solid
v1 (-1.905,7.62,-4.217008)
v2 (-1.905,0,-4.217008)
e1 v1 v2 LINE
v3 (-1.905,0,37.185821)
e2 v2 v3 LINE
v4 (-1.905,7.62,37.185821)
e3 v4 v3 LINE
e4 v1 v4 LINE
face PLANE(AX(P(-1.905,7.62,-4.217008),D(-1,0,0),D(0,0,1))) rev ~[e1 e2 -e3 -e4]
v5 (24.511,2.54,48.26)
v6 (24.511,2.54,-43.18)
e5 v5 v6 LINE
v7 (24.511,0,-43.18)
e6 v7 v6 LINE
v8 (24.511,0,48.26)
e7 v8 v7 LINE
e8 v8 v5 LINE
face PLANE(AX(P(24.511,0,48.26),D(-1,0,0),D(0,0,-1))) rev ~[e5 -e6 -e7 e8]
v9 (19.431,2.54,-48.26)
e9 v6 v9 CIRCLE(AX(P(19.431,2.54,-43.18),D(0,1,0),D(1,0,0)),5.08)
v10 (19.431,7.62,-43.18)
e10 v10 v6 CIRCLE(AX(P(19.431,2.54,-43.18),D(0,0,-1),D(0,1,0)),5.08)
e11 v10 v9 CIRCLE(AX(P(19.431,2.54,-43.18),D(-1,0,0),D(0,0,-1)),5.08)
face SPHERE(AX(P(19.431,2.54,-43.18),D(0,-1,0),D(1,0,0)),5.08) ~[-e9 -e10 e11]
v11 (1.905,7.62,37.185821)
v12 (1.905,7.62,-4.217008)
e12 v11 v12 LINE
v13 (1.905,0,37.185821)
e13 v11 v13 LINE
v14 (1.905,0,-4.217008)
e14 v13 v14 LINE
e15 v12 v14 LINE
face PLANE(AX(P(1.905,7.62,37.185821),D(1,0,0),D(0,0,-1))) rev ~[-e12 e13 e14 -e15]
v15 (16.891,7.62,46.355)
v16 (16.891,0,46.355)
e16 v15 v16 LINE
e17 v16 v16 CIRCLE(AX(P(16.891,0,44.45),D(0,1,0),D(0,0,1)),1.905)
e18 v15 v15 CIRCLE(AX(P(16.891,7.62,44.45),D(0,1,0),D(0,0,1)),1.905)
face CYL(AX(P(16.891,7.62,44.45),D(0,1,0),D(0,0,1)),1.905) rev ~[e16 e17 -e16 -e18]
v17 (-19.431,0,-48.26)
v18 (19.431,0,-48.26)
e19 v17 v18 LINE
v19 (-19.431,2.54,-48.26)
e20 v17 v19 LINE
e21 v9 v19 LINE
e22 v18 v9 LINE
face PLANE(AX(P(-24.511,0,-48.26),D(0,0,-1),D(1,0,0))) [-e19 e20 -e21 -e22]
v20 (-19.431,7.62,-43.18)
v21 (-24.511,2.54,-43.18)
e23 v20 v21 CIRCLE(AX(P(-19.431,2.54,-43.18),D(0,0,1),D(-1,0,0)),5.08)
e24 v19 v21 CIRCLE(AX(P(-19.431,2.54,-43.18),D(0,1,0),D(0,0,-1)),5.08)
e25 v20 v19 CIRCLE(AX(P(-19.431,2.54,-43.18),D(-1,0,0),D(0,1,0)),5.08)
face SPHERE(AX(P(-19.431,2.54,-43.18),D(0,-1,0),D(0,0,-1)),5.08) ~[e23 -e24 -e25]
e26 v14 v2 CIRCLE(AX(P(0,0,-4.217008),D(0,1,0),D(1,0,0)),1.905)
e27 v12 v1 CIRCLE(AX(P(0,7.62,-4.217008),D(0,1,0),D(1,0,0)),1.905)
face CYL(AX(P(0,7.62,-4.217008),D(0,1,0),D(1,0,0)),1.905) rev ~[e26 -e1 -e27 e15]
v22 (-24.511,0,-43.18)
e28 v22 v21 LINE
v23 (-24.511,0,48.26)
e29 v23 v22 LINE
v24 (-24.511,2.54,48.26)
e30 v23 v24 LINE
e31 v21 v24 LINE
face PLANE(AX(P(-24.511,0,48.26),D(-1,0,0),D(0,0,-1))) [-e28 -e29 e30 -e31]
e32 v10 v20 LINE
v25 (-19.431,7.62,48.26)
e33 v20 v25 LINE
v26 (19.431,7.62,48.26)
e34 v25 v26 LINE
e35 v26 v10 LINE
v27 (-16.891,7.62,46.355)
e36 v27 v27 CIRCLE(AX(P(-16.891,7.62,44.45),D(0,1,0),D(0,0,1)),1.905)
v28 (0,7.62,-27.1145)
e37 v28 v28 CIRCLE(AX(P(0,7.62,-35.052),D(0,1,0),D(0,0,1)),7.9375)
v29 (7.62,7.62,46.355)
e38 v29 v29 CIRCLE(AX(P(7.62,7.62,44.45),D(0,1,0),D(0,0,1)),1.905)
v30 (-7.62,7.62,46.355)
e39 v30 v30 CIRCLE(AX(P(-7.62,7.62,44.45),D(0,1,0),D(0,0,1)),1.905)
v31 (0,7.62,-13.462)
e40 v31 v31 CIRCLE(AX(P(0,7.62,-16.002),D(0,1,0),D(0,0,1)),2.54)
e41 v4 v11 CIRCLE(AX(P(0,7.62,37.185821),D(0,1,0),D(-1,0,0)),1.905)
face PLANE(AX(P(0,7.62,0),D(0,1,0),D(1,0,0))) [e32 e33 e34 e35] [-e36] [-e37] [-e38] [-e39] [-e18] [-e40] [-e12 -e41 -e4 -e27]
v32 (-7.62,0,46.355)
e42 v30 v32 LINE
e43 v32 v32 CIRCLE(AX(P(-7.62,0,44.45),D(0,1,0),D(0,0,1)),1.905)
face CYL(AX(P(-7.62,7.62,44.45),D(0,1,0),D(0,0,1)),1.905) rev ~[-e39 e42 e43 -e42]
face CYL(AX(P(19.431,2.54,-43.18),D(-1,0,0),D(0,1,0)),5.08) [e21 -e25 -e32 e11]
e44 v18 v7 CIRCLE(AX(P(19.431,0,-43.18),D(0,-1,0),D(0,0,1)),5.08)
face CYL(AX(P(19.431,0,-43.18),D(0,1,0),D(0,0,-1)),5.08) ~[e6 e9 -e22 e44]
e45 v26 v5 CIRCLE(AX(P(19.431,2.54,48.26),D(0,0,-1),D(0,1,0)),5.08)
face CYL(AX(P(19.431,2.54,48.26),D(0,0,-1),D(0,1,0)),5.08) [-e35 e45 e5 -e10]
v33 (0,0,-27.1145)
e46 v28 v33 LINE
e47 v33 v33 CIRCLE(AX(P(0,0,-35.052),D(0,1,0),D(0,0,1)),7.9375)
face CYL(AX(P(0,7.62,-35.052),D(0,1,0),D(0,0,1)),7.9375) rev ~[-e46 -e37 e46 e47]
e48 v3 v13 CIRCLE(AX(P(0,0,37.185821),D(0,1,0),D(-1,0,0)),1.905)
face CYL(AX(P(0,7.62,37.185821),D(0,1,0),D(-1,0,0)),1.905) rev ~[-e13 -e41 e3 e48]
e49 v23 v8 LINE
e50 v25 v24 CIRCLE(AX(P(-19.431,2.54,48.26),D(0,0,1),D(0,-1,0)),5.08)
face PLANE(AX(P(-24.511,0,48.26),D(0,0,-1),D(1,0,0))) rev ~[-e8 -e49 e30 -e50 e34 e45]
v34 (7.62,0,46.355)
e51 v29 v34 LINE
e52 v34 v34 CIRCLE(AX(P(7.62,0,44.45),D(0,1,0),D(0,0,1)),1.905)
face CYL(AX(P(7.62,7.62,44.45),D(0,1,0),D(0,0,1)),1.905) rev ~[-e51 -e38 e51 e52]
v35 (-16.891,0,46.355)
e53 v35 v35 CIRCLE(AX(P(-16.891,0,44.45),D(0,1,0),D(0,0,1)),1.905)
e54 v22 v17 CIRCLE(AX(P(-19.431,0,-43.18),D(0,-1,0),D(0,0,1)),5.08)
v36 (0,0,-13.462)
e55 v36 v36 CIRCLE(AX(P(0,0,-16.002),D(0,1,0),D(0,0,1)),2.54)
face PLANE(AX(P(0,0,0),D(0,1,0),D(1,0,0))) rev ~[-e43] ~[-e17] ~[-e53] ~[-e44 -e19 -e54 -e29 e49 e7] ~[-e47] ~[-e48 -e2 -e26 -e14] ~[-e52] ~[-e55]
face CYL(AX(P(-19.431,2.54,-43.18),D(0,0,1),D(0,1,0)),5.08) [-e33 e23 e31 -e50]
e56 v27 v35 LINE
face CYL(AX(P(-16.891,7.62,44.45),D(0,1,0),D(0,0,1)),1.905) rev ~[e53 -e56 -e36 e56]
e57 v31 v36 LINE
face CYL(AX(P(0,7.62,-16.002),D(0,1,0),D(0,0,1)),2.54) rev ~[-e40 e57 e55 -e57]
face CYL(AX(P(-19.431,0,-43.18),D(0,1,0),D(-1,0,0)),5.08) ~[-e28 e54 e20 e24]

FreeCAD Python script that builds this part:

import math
import FreeCAD as App
import Part
import Sketcher
from FreeCAD import Vector
Q = App.Units.Quantity


def edges_at(feature, points):
    """Names of the edges that pass closest to the given points."""
    edges = feature.Shape.Edges
    near = lambda p: min(range(len(edges)), key=lambda i: edges[i].distToShape(Part.Vertex(*p))[0])
    return sorted({f"Edge{near(p) + 1}" for p in points})

doc = App.newDocument("Part")
body = doc.addObject("PartDesign::Body", "Body")

# Sketch on XZ plane
sketch1 = body.newObject("Sketcher::SketchObject", "Sketch")
sketch1.AttachmentSupport = (doc.getObject("XZ_Plane"), [""])
sketch1.MapMode = "FlatFace"
sketch1.addGeometry([
    Part.LineSegment(Vector(-25, -48, 0), Vector(-25, 48, 0)),
    Part.LineSegment(Vector(-25, 48, 0), Vector(25, 48, 0)),
    Part.LineSegment(Vector(25, 48, 0), Vector(25, -48, 0)),
    Part.LineSegment(Vector(25, -48, 0), Vector(-25, -48, 0)),
], False)
sketch1.addConstraint([
    Sketcher.Constraint("Coincident", 0, 2, 1, 1),
    Sketcher.Constraint("Coincident", 1, 2, 2, 1),
    Sketcher.Constraint("Coincident", 2, 2, 3, 1),
    Sketcher.Constraint("Coincident", 3, 2, 0, 1),
    Sketcher.Constraint("Vertical", 0),
    Sketcher.Constraint("Horizontal", 1),
    Sketcher.Constraint("Vertical", 2),
    Sketcher.Constraint("Horizontal", 3),
    Sketcher.Constraint("Symmetric", 0, 2, 2, 2, -1, 1),
    Sketcher.Constraint("DistanceY", 0, 1, 0, 2, Q("3.8 in")),
    Sketcher.Constraint("DistanceX", 1, 1, 1, 2, Q("1.93 in")),
])
pad1 = body.newObject("PartDesign::Pad", "Pad")
pad1.Profile = sketch1
pad1.Length = Q("0.3 in")
pad1.Reversed = True

# Sketch on XZ plane
sketch2 = body.newObject("Sketcher::SketchObject", "Sketch001")
sketch2.AttachmentSupport = (doc.getObject("XZ_Plane"), [""])
sketch2.MapMode = "FlatFace"
sketch2.AttachmentOffset = App.Placement(Vector(0, 0, -0.3 * 25.4), App.Rotation())
sketch2.addGeometry([
    Part.Circle(Vector(-16.9, 44.5, 0), Vector(0, 0, 1), 1.9),
    Part.Circle(Vector(-7.6, 44.5, 0), Vector(0, 0, 1), 1.9),
    Part.Circle(Vector(7.6, 44.5, 0), Vector(0, 0, 1), 1.9),
    Part.Circle(Vector(16.9, 44.5, 0), Vector(0, 0, 1), 1.9),
], False)
sketch2.addConstraint([
    Sketcher.Constraint("Equal", 0, 1),
    Sketcher.Constraint("Equal", 1, 2),
    Sketcher.Constraint("Equal", 2, 3),
    Sketcher.Constraint("Symmetric", 1, 3, 2, 3, -2),
    Sketcher.Constraint("Symmetric", 0, 3, 3, 3, -2),
    Sketcher.Constraint("Horizontal", 0, 3, 1, 3),
    Sketcher.Constraint("Diameter", 0, Q("0.15 in")),
    Sketcher.Constraint("DistanceX", 1, 3, -1, 1, Q("0.3 in")),
    Sketcher.Constraint("DistanceY", -1, 1, 0, 3, Q("1.75 in")),
    Sketcher.Constraint("DistanceX", 0, 3, 3, 3, Q("1.33 in")),
])
pocket1 = body.newObject("PartDesign::Pocket", "Pocket")
pocket1.Profile = sketch2
pocket1.Type = "ThroughAll"
pocket1.Reversed = True

# Sketch on XZ plane
sketch3 = body.newObject("Sketcher::SketchObject", "Sketch002")
sketch3.AttachmentSupport = (doc.getObject("XZ_Plane"), [""])
sketch3.MapMode = "FlatFace"
sketch3.AttachmentOffset = App.Placement(Vector(0, 0, -0.3 * 25.4), App.Rotation())
sketch3.addGeometry(Part.Circle(Vector(0, -35, 0), Vector(0, 0, 1), 8), False)
sketch3.addConstraint([
    Sketcher.Constraint("PointOnObject", 0, 3, -2),
    Sketcher.Constraint("Diameter", 0, Q("0.625 in")),
    Sketcher.Constraint("DistanceY", 0, 3, -1, 1, Q("1.38 in")),
])
pocket2 = body.newObject("PartDesign::Pocket", "Pocket001")
pocket2.Profile = sketch3
pocket2.Type = "ThroughAll"
pocket2.Reversed = True
doc.recompute()

fillet = body.newObject("PartDesign::Fillet", "Fillet")
fillet.Base = (pocket2, edges_at(pocket2, [(-24.511, 3.81, -48.26), (24.511, 3.81, -48.26)]))
fillet.Radius = Q("0.2 in")
doc.recompute()

fillet2 = body.newObject("PartDesign::Fillet", "Fillet001")
fillet2.Base = (fillet, edges_at(fillet, [
    (24.511, 7.62, 2.54),
    (-24.511, 7.62, 2.54),
    (0, 7.62, -48.26),
    (23.023, 7.62, -46.772),
    (-23.023, 7.62, -46.772),
]))
fillet2.Radius = Q("0.2 in")

# Sketch on XZ plane
sketch4 = body.newObject("Sketcher::SketchObject", "Sketch003")
sketch4.AttachmentSupport = (doc.getObject("XZ_Plane"), [""])
sketch4.MapMode = "FlatFace"
sketch4.AttachmentOffset = App.Placement(Vector(0, 0, -0.3 * 25.4), App.Rotation())
sketch4.addGeometry([
    Part.ArcOfCircle(Part.Circle(Vector(0, 37.2, 0), Vector(0, 0, 1), 1.9), math.radians(0), math.radians(180)),
    Part.LineSegment(Vector(1.9, 37.2, 0), Vector(1.9, -4.2, 0)),
    Part.ArcOfCircle(Part.Circle(Vector(0, -4.2, 0), Vector(0, 0, 1), 1.9), math.radians(180), math.radians(360)),
    Part.LineSegment(Vector(-1.9, -4.2, 0), Vector(-1.9, 37.2, 0)),
], False)
sketch4.addConstraint([
    Sketcher.Constraint("Tangent", 0, 1, 1, 1),
    Sketcher.Constraint("Tangent", 1, 2, 2, 2),
    Sketcher.Constraint("Tangent", 2, 1, 3, 1),
    Sketcher.Constraint("Tangent", 3, 2, 0, 2),
    Sketcher.Constraint("Vertical", 1),
    Sketcher.Constraint("Vertical", 3),
    Sketcher.Constraint("PointOnObject", 0, 3, -2),
    Sketcher.Constraint("Radius", 0, Q("0.075 in")),
    Sketcher.Constraint("DistanceY", 1, 2, 1, 1, 41.402829),
    Sketcher.Constraint("DistanceY", -1, 1, 0, 3, 37.185821),
])
pocket3 = body.newObject("PartDesign::Pocket", "Pocket002")
pocket3.Profile = sketch4
pocket3.Type = "ThroughAll"
pocket3.Reversed = True

# Sketch on XZ plane
sketch5 = body.newObject("Sketcher::SketchObject", "Sketch004")
sketch5.AttachmentSupport = (doc.getObject("XZ_Plane"), [""])
sketch5.MapMode = "FlatFace"
sketch5.AttachmentOffset = App.Placement(Vector(0, 0, -0.3 * 25.4), App.Rotation())
sketch5.addGeometry([
    Part.Circle(Vector(0, -35.1, 0), Vector(0, 0, 1), 7.9),
    Part.Circle(Vector(0, -16, 0), Vector(0, 0, 1), 2.5),
], False)
sketch5.addConstraint([
    Sketcher.Constraint("PointOnObject", 0, 3, -2),
    Sketcher.Constraint("PointOnObject", 1, 3, -2),
    Sketcher.Constraint("Diameter", 1, Q("0.2 in")),
    Sketcher.Constraint("Diameter", 0, Q("0.625 in")),
    Sketcher.Constraint("DistanceY", 0, 3, -1, 1, Q("1.38 in")),
    Sketcher.Constraint("DistanceY", 1, 3, -1, 1, Q("0.63 in")),
])
pocket4 = body.newObject("PartDesign::Pocket", "Pocket003")
pocket4.Profile = sketch5
pocket4.Type = "ThroughAll"
pocket4.Reversed = True

doc.recompute()
